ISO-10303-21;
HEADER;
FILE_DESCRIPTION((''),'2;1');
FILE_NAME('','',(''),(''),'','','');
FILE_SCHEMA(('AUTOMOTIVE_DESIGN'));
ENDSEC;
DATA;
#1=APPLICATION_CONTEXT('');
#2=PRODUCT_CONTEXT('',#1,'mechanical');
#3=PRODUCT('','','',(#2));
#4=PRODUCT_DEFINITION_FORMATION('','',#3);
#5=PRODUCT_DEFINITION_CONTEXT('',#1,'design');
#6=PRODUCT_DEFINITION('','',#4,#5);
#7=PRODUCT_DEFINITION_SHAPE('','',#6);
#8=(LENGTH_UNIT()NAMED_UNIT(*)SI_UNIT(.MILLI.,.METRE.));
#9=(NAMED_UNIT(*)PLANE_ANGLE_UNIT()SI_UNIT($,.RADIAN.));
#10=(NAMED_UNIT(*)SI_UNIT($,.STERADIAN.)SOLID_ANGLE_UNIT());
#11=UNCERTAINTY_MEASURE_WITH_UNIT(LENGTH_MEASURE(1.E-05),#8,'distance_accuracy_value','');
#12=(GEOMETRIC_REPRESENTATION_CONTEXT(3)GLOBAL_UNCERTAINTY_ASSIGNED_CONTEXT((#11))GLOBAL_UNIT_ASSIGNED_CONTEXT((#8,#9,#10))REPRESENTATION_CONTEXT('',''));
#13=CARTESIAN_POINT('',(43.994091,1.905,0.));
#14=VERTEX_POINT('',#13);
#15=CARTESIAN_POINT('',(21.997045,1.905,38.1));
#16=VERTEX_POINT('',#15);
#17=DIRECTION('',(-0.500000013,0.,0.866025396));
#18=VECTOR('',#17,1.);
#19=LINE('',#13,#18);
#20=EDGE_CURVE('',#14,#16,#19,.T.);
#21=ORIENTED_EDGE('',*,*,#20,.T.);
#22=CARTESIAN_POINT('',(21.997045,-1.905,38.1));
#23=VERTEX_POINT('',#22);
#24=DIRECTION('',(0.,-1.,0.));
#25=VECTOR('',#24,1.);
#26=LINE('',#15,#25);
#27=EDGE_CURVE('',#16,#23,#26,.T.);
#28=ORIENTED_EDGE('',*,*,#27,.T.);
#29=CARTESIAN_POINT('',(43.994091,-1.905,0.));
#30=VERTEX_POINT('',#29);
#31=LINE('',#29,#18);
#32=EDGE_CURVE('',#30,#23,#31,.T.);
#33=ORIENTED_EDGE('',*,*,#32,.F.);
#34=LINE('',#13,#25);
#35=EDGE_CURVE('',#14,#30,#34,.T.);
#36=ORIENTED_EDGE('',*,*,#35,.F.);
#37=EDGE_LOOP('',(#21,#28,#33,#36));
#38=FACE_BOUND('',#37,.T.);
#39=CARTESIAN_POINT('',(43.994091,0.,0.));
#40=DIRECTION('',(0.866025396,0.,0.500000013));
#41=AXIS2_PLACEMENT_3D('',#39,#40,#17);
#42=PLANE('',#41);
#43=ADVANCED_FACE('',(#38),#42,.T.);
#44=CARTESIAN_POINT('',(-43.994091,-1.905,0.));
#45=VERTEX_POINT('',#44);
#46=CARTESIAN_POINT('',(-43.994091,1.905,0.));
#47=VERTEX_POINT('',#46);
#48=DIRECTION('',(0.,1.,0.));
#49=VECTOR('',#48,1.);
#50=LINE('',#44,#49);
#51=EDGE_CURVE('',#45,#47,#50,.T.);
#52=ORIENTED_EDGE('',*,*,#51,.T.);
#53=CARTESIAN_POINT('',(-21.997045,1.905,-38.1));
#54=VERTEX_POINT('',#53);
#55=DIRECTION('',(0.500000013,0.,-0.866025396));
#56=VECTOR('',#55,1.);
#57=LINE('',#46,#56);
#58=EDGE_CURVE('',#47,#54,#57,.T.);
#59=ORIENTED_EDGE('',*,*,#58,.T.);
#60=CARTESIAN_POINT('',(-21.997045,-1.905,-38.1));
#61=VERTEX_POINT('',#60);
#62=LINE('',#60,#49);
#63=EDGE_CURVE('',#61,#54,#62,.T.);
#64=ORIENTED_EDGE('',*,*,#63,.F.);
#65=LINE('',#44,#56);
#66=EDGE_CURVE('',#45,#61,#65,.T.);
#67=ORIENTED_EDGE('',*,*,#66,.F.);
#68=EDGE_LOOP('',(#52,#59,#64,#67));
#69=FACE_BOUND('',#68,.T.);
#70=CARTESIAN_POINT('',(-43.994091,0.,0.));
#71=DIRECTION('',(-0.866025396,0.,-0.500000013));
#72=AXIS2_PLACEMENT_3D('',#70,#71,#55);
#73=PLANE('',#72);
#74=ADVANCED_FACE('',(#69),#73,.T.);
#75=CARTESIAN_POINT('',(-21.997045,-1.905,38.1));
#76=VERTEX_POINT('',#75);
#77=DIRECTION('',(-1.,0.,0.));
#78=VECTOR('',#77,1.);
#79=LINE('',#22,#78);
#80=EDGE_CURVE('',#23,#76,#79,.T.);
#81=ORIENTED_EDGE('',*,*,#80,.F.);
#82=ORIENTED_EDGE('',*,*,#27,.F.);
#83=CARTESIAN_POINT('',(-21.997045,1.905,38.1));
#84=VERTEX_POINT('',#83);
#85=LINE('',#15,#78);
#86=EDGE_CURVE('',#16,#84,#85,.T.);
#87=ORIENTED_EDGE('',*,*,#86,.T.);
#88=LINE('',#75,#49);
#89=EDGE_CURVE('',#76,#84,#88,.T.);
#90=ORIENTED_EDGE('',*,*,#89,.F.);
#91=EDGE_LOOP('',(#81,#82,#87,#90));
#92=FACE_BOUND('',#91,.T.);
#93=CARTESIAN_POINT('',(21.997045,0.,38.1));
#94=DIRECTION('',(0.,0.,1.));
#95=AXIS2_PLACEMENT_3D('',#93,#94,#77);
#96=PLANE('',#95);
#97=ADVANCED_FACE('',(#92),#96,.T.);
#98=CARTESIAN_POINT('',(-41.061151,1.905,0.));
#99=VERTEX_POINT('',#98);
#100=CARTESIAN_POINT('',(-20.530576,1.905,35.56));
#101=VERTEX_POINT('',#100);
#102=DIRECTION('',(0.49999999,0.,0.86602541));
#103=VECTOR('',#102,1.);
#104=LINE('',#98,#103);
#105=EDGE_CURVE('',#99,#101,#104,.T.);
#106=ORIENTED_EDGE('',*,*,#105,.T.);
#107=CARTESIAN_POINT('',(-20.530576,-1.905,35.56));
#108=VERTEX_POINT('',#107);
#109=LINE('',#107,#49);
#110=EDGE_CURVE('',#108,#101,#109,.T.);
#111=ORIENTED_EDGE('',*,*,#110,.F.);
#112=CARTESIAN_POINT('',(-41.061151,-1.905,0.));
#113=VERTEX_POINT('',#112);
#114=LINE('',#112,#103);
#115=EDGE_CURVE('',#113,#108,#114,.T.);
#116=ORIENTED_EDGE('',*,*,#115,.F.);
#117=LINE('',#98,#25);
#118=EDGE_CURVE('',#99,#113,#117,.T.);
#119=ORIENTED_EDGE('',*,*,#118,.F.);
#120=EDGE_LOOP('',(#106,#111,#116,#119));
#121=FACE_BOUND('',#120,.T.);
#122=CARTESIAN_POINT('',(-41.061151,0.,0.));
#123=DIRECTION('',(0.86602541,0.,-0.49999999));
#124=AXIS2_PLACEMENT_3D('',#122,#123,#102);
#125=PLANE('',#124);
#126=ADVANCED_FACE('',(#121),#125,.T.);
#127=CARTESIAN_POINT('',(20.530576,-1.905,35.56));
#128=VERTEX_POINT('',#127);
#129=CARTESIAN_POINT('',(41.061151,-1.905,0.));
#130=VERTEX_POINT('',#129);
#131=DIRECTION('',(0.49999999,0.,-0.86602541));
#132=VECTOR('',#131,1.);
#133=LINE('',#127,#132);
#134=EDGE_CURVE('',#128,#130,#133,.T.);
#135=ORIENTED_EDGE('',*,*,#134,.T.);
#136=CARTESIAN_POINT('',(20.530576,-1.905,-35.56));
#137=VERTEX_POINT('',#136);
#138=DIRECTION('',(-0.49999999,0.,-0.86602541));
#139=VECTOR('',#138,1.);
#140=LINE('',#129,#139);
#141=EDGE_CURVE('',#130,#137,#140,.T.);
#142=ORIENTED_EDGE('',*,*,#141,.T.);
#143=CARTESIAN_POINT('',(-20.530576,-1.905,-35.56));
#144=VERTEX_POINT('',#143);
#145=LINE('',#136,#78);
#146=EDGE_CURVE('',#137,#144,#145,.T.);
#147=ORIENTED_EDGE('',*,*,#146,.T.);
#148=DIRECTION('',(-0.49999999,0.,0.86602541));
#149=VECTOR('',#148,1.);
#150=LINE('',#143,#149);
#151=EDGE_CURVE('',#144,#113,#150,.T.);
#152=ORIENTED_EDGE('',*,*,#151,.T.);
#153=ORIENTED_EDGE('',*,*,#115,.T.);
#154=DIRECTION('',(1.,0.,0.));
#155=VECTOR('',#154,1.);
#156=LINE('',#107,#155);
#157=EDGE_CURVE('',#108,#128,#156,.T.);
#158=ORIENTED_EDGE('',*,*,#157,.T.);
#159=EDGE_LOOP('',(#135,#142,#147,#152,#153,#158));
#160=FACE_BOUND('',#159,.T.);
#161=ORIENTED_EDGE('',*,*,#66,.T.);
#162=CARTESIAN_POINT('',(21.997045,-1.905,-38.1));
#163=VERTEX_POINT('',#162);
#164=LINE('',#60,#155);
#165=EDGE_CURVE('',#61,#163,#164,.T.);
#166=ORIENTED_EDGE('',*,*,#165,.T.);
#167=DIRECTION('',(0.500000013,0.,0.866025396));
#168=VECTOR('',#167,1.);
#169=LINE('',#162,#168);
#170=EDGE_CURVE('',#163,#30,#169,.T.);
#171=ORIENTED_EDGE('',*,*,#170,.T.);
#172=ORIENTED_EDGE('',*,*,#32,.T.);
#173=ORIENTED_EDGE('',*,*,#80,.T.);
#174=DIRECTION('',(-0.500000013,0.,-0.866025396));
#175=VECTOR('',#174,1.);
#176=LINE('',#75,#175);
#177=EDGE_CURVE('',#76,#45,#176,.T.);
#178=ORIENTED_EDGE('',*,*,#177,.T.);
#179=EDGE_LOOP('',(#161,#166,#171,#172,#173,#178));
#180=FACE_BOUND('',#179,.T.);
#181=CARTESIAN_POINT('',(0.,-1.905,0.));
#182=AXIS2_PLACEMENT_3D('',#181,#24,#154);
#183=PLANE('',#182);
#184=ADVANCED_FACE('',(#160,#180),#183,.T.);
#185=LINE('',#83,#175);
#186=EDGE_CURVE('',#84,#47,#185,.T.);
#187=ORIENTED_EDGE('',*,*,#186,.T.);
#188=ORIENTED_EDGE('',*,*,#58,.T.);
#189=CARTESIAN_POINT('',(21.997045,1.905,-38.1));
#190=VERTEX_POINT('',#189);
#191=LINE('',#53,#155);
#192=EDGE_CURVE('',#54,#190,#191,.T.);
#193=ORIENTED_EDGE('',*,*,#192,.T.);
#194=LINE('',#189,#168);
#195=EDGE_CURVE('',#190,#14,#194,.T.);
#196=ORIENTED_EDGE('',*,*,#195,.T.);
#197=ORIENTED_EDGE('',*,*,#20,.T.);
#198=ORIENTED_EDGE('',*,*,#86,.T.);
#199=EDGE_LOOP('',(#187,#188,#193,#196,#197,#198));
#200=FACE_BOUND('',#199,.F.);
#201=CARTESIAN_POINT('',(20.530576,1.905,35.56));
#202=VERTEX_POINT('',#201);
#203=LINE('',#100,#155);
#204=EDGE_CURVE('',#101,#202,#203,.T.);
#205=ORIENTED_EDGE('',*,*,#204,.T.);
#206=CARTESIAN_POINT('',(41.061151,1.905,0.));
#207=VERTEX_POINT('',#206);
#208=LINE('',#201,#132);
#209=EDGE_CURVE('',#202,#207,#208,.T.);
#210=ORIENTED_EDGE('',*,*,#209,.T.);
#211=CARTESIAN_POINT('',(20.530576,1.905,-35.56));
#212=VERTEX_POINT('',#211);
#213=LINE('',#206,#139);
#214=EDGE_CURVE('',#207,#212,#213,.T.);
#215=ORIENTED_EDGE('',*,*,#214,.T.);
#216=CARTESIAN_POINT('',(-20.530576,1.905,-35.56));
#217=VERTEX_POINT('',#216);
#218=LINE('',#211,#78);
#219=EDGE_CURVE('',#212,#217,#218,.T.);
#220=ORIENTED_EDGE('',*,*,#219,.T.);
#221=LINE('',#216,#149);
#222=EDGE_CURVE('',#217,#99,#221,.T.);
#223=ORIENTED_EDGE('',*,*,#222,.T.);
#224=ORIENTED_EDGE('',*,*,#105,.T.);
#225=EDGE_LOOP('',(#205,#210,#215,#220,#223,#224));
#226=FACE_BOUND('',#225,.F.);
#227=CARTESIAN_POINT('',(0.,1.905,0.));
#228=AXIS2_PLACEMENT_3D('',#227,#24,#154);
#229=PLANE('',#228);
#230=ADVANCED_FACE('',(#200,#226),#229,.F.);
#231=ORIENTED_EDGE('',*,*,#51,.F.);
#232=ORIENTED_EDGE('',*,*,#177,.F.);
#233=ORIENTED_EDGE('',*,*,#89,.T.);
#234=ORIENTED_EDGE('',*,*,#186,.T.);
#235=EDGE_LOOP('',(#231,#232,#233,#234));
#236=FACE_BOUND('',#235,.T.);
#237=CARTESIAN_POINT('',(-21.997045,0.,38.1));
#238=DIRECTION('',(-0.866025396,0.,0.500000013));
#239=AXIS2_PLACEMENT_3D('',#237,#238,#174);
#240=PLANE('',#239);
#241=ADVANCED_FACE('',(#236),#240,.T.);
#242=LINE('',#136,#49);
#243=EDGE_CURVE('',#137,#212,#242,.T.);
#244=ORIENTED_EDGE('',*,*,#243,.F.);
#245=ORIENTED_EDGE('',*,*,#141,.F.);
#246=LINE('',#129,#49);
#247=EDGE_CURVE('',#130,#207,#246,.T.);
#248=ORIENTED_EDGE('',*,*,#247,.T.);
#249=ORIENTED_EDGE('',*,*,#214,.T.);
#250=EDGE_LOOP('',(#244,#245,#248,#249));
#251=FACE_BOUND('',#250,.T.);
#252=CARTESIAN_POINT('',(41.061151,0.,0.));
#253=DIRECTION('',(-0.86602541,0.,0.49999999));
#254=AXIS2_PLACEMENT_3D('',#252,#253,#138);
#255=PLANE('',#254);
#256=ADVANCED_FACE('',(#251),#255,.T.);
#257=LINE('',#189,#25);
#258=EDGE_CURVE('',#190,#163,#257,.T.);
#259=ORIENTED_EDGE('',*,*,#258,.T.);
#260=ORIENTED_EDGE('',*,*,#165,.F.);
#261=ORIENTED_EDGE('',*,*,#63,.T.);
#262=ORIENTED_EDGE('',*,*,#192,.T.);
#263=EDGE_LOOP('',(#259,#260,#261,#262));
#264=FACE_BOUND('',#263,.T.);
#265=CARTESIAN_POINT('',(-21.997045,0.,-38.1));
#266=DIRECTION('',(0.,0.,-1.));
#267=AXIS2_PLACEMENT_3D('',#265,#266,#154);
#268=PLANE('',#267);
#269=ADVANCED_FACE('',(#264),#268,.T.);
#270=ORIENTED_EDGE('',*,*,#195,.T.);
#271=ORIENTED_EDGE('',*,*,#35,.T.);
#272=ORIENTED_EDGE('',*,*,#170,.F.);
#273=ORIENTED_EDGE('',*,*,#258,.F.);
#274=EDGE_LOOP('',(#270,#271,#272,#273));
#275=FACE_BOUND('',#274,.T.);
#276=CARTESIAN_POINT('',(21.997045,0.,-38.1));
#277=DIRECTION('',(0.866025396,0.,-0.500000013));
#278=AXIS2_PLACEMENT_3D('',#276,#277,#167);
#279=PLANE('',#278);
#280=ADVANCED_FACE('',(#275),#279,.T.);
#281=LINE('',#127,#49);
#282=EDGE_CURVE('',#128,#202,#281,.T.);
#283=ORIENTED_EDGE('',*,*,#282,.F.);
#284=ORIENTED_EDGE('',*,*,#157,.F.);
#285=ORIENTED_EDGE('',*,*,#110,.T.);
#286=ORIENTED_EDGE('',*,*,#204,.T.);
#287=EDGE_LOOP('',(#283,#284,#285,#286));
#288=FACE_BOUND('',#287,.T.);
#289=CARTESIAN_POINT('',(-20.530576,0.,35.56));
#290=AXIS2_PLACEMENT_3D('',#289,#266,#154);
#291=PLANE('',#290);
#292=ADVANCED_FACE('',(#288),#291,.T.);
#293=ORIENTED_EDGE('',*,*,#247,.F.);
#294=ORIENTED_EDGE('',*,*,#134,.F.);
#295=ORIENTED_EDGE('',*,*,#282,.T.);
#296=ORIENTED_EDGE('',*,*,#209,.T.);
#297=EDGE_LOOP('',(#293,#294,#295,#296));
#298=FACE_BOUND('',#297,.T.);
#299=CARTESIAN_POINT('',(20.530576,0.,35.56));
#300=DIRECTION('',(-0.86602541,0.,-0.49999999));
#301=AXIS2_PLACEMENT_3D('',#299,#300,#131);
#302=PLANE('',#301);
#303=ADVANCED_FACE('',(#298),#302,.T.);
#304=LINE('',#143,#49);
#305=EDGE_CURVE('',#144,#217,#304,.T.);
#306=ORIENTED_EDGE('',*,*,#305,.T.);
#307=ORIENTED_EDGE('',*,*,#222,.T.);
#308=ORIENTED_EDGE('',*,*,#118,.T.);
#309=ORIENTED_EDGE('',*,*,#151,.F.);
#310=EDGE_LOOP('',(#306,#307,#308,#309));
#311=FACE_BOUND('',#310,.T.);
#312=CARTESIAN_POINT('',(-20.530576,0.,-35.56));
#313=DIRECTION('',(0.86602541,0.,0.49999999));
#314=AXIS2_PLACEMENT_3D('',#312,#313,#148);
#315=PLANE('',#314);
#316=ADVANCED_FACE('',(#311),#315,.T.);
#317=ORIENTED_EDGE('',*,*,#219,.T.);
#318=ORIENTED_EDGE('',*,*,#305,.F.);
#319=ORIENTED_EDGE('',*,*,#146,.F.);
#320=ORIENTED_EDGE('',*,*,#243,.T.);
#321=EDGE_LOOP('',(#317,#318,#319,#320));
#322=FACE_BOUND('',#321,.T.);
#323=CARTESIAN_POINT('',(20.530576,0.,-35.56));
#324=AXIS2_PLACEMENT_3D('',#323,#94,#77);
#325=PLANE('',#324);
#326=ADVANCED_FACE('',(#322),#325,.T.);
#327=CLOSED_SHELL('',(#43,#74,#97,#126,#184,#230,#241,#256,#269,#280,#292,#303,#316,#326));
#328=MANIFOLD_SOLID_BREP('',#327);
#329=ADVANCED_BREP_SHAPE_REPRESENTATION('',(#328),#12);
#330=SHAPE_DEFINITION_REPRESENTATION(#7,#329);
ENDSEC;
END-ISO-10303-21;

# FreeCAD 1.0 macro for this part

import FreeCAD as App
import Part
import Sketcher
Q = App.Units.Quantity


def add_polygon(sketch, points):
    """Adds a closed chain of lines whose ends are joined by coincident constraints."""
    first, n = sketch.GeometryCount, len(points)
    for a, b in zip(points, points[1:] + points[:1]):
        sketch.addGeometry(Part.LineSegment(App.Vector(*a, 0), App.Vector(*b, 0)), False)
    for i in range(n):
        sketch.addConstraint(Sketcher.Constraint("Coincident", first + i, 2, first + (i + 1) % n, 1))

doc = App.newDocument("Part")
body = doc.addObject("PartDesign::Body", "Body")

sketch1 = body.newObject("Sketcher::SketchObject", "Sketch")
sketch1.AttachmentSupport = (doc.getObject("XZ_Plane"), [""])
sketch1.MapMode = "FlatFace"
add_polygon(sketch1, [(-21.997045, -38.1), (21.997045, -38.1), (43.994091, 0), (21.997045, 38.1), (-21.997045, 38.1), (-43.994091, 0)])
add_polygon(sketch1, [(-20.530576, -35.56), (-41.061151, 0), (-20.530576, 35.56), (20.530576, 35.56), (41.061151, 0), (20.530576, -35.56)])
sketch1.addConstraint([
    Sketcher.Constraint("Horizontal", 0),
    Sketcher.Constraint("Horizontal", 3),
    Sketcher.Constraint("Horizontal", 8),
    Sketcher.Constraint("Horizontal", 11),
    Sketcher.Constraint("Symmetric", 0, 2, 3, 2, -1, 1),
    Sketcher.Constraint("Symmetric", 1, 2, 4, 2, -1, 1),
    Sketcher.Constraint("Symmetric", 6, 2, 9, 2, -1, 1),
    Sketcher.Constraint("Symmetric", 7, 2, 10, 2, -1, 1),
    Sketcher.Constraint("PointOnObject", 1, 2, -1),
    Sketcher.Constraint("PointOnObject", 6, 2, -1),
    Sketcher.Constraint("Parallel", 2, 5),
    Sketcher.Constraint("Parallel", 5, 6),
    Sketcher.Constraint("Parallel", 4, 7),
    Sketcher.Constraint("Parallel", 6, 9),
    Sketcher.Constraint("Vertical", 0, 2, 2, 2),
    Sketcher.Constraint("Angle", 1, Q("59.999999 deg")),
    Sketcher.Constraint("DistanceY", 0, 2, 2, 2, Q("3 in")),
    Sketcher.Constraint("DistanceY", -1, 1, 7, 2, Q("1.4 in")),
    Sketcher.Constraint("DistanceX", 0, 1, 0, 2, 43.99409),
    Sketcher.Constraint("DistanceX", 8, 1, 8, 2, 41.061152),
])
pad1 = body.newObject("PartDesign::Pad", "Pad")
pad1.Profile = sketch1
pad1.Length = Q("0.15 in")
pad1.Midplane = True

doc.recompute()
